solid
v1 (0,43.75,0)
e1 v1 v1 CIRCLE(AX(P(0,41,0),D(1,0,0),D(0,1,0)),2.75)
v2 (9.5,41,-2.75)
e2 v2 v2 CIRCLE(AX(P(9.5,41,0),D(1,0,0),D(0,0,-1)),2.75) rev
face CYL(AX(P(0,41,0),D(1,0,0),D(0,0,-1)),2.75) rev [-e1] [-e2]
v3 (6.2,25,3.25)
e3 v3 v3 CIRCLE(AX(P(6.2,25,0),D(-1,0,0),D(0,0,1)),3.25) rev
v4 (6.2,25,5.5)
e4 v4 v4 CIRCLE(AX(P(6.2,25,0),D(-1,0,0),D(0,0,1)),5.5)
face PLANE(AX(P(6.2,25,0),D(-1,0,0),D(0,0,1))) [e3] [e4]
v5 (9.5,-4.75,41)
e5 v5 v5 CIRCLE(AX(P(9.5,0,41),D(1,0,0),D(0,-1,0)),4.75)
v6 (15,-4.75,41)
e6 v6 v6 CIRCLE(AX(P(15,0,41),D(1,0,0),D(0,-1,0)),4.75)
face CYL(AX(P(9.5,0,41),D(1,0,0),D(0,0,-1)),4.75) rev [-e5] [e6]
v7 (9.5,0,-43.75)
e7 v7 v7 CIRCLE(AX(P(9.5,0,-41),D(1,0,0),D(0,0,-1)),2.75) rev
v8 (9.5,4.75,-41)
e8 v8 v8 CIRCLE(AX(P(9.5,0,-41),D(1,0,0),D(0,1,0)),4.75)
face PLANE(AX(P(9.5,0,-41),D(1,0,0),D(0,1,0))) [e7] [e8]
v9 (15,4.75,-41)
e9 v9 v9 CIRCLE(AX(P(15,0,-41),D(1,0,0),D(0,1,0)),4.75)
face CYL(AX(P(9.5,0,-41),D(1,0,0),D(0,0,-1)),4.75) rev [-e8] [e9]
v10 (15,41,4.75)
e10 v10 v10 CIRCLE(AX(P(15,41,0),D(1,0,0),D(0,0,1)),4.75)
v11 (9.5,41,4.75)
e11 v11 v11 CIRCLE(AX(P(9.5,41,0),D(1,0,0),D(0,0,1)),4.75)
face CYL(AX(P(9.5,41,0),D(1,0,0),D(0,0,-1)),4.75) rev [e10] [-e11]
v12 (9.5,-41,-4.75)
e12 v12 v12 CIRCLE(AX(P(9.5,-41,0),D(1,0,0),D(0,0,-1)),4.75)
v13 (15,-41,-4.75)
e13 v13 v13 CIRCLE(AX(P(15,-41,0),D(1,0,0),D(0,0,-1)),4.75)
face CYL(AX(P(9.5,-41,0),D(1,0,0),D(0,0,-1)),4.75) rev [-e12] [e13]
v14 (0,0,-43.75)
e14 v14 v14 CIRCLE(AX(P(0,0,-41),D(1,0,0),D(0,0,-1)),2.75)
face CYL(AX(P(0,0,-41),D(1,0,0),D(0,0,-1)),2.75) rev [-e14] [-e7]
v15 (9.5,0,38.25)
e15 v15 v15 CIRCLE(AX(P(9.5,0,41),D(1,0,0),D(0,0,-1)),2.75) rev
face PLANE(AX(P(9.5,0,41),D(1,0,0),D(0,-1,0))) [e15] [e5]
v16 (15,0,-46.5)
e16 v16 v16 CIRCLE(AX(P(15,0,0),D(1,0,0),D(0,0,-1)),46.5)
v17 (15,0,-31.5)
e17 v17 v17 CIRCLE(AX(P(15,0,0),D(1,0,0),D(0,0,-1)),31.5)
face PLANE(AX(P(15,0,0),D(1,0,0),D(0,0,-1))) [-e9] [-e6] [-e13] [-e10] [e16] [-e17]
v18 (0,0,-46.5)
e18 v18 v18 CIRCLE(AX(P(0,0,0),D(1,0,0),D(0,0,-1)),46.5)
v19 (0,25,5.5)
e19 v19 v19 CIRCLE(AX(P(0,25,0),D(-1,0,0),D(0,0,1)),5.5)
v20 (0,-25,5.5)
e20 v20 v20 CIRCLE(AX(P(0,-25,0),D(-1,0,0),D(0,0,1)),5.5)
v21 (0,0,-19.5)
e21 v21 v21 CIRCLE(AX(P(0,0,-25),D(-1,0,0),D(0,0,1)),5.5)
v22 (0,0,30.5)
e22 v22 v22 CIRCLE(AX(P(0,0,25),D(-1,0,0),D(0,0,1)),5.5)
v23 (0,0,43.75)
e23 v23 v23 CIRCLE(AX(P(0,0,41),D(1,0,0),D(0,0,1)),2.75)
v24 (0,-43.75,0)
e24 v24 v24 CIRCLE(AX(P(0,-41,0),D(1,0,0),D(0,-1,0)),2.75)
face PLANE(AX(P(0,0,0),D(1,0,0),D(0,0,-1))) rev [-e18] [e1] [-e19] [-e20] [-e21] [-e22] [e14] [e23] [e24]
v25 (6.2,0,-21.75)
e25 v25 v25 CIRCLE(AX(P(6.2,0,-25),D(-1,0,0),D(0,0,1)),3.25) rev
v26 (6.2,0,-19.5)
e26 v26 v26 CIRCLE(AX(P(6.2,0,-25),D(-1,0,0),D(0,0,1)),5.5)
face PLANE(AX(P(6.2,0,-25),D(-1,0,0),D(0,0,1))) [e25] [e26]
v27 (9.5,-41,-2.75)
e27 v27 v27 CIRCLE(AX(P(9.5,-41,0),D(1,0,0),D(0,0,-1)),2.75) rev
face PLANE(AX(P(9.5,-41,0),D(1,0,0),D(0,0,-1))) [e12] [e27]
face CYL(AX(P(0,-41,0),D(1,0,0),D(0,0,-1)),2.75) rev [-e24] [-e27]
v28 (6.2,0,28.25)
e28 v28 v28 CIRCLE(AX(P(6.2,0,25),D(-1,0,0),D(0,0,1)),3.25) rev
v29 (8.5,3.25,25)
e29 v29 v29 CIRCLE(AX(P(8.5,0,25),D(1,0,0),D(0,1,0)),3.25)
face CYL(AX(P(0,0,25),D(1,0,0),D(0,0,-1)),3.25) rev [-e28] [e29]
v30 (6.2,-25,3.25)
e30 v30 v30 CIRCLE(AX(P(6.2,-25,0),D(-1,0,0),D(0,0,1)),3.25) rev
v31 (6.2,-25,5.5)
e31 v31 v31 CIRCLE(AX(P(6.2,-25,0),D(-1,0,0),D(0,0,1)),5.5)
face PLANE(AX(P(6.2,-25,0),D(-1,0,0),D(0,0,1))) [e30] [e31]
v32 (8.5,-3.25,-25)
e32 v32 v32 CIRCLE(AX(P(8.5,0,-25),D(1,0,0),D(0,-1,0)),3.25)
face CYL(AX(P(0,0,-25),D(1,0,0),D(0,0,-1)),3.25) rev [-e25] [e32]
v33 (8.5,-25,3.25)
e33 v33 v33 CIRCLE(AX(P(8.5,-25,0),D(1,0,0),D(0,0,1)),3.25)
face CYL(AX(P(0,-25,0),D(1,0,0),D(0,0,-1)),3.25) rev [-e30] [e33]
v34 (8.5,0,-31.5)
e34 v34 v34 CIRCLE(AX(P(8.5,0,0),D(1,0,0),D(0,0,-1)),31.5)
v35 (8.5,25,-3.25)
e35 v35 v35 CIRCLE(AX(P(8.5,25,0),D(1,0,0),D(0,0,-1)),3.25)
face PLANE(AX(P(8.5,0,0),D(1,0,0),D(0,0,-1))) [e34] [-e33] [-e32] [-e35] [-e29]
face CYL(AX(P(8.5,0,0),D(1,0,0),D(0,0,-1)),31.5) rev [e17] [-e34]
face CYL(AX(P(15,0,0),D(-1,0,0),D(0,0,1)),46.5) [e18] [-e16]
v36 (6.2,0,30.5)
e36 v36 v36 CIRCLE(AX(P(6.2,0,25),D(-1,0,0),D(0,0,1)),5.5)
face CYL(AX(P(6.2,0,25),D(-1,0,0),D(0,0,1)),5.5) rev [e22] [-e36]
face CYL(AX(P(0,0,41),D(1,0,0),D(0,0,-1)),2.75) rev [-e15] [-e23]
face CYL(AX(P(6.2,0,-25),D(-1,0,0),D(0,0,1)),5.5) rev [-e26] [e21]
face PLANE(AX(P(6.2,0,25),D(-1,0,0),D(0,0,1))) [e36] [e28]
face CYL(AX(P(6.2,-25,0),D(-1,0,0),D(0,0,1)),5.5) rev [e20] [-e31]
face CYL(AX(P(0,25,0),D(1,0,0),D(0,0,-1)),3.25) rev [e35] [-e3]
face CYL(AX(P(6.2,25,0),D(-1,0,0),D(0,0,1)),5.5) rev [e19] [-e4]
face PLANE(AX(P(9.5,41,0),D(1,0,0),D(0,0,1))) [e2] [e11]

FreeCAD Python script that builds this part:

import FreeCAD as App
import Part
import Sketcher

V = App.Vector

doc = App.newDocument("Part")
params = doc.addObject("Spreadsheet::Sheet", "Params")
for row, (alias, value) in enumerate([
    ("sketch1_diameter", "93 mm"),
    ("pad1_length", "15 mm"),
    ("sketch2_diameter", "63 mm"),
    ("pocket1_length", "6.5 mm"),
    ("sketch3_diameter", "6.5 mm"),
    ("sketch4_diameter", "11 mm"),
    ("pocket3_length", "6.2 mm"),
    ("sketch5_diameter", "5.5 mm"),
    ("sketch6_diameter", "9.5 mm"),
    ("pocket5_length", "5.5 mm"),
], start=1):
    params.set(f"A{row}", alias)
    params.set(f"B{row}", "=" + value)
    params.setAlias(f"B{row}", alias)

body = doc.addObject("PartDesign::Body", "Body")

sketch1 = body.newObject("Sketcher::SketchObject", "Sketch")
sketch1.AttachmentSupport = (doc.getObject("YZ_Plane"), [""])
sketch1.MapMode = "FlatFace"
sketch1.addGeometry(Part.Circle(V(0, 0, 0), V(0, 0, 1), 46), False)
sketch1.addConstraint(Sketcher.Constraint("Coincident", 0, 3, -1, 1))
sketch1.addConstraint(Sketcher.Constraint("Diameter", 0, 93.0))
sketch1.setExpression("Constraints[1]", "Params.sketch1_diameter")
pad1 = body.newObject("PartDesign::Pad", "Pad")
pad1.Profile = sketch1
pad1.setExpression("Length", "Params.pad1_length")

sketch2 = body.newObject("Sketcher::SketchObject", "Sketch001")
sketch2.AttachmentSupport = (doc.getObject("YZ_Plane"), [""])
sketch2.MapMode = "FlatFace"
sketch2.AttachmentOffset = App.Placement(V(0, 0, 15), App.Rotation())
sketch2.addGeometry(Part.Circle(V(0, 0, 0), V(0, 0, 1), 32), False)
sketch2.addConstraint(Sketcher.Constraint("Coincident", 0, 3, -1, 1))
sketch2.addConstraint(Sketcher.Constraint("Diameter", 0, 63.0))
sketch2.setExpression("Constraints[1]", "Params.sketch2_diameter")
pocket1 = body.newObject("PartDesign::Pocket", "Pocket")
pocket1.Profile = sketch2
pocket1.setExpression("Length", "Params.pocket1_length")

sketch3 = body.newObject("Sketcher::SketchObject", "Sketch002")
sketch3.AttachmentSupport = (doc.getObject("YZ_Plane"), [""])
sketch3.MapMode = "FlatFace"
sketch3.AttachmentOffset = App.Placement(V(0, 0, 8.5), App.Rotation())
sketch3.addGeometry(Part.Circle(V(25, 0, 0), V(0, 0, 1), 3.2), False)
sketch3.addConstraint(Sketcher.Constraint("PointOnObject", 0, 3, -1))
sketch3.addConstraint(Sketcher.Constraint("Diameter", 0, 6.5))
sketch3.addConstraint(Sketcher.Constraint("DistanceX", -1, 1, 0, 3, 25.0))
sketch3.setExpression("Constraints[1]", "Params.sketch3_diameter")
pocket2 = body.newObject("PartDesign::Pocket", "Pocket001")
pocket2.Profile = sketch3
pocket2.Type = "ThroughAll"
doc.recompute()

polarpattern = body.newObject("PartDesign::PolarPattern", "PolarPattern")
polarpattern.Originals = [pocket2]
polarpattern.Axis = (doc.getObject("X_Axis"), [""])
polarpattern.Angle = 360
polarpattern.Occurrences = 4
body.Tip = polarpattern

sketch4 = body.newObject("Sketcher::SketchObject", "Sketch003")
sketch4.AttachmentSupport = (doc.getObject("YZ_Plane"), [""])
sketch4.MapMode = "FlatFace"
sketch4.addGeometry(Part.Circle(V(25, 0, 0), V(0, 0, 1), 6), False)
sketch4.addGeometry(Part.Circle(V(0, -25, 0), V(0, 0, 1), 6), False)
sketch4.addGeometry(Part.Circle(V(-25, 0, 0), V(0, 0, 1), 6), False)
sketch4.addGeometry(Part.Circle(V(0, 25, 0), V(0, 0, 1), 6), False)
sketch4.addConstraint(Sketcher.Constraint("Equal", 0, 1))
sketch4.addConstraint(Sketcher.Constraint("Equal", 1, 2))
sketch4.addConstraint(Sketcher.Constraint("Equal", 2, 3))
sketch4.addConstraint(Sketcher.Constraint("Symmetric", 0, 3, 2, 3, -1, 1))
sketch4.addConstraint(Sketcher.Constraint("Symmetric", 1, 3, 3, 3, -1, 1))
sketch4.addConstraint(Sketcher.Constraint("PointOnObject", 0, 3, -1))
sketch4.addConstraint(Sketcher.Constraint("PointOnObject", 1, 3, -2))
sketch4.addConstraint(Sketcher.Constraint("Diameter", 0, 11.0))
sketch4.addConstraint(Sketcher.Constraint("DistanceX", -1, 1, 0, 3, 25.0))
sketch4.addConstraint(Sketcher.Constraint("DistanceY", 1, 3, -1, 1, 25.0))
sketch4.setExpression("Constraints[7]", "Params.sketch4_diameter")
pocket3 = body.newObject("PartDesign::Pocket", "Pocket002")
pocket3.Profile = sketch4
pocket3.setExpression("Length", "Params.pocket3_length")
pocket3.Reversed = True

sketch5 = body.newObject("Sketcher::SketchObject", "Sketch004")
sketch5.AttachmentSupport = (doc.getObject("YZ_Plane"), [""])
sketch5.MapMode = "FlatFace"
sketch5.AttachmentOffset = App.Placement(V(0, 0, 15), App.Rotation())
sketch5.addGeometry(Part.Circle(V(0, -41, 0), V(0, 0, 1), 2.8), False)
sketch5.addConstraint(Sketcher.Constraint("PointOnObject", 0, 3, -2))
sketch5.addConstraint(Sketcher.Constraint("Diameter", 0, 5.5))
sketch5.addConstraint(Sketcher.Constraint("DistanceY", 0, 3, -1, 1, 41.0))
sketch5.setExpression("Constraints[1]", "Params.sketch5_diameter")
pocket4 = body.newObject("PartDesign::Pocket", "Pocket003")
pocket4.Profile = sketch5
pocket4.Type = "ThroughAll"
doc.recompute()

polarpattern2 = body.newObject("PartDesign::PolarPattern", "PolarPattern001")
polarpattern2.Originals = [pocket4]
polarpattern2.Axis = (doc.getObject("X_Axis"), [""])
polarpattern2.Angle = 360
polarpattern2.Occurrences = 4
body.Tip = polarpattern2

sketch6 = body.newObject("Sketcher::SketchObject", "Sketch005")
sketch6.AttachmentSupport = (doc.getObject("YZ_Plane"), [""])
sketch6.MapMode = "FlatFace"
sketch6.AttachmentOffset = App.Placement(V(0, 0, 15), App.Rotation())
sketch6.addGeometry(Part.Circle(V(-41, 0, 0), V(0, 0, 1), 4.8), False)
sketch6.addConstraint(Sketcher.Constraint("PointOnObject", 0, 3, -1))
sketch6.addConstraint(Sketcher.Constraint("Diameter", 0, 9.5))
sketch6.addConstraint(Sketcher.Constraint("DistanceX", 0, 3, -1, 1, 41.0))
sketch6.setExpression("Constraints[1]", "Params.sketch6_diameter")
pocket5 = body.newObject("PartDesign::Pocket", "Pocket004")
pocket5.Profile = sketch6
pocket5.setExpression("Length", "Params.pocket5_length")
doc.recompute()

polarpattern3 = body.newObject("PartDesign::PolarPattern", "PolarPattern002")
polarpattern3.Originals = [pocket5]
polarpattern3.Axis = (doc.getObject("X_Axis"), [""])
polarpattern3.Angle = 360
polarpattern3.Occurrences = 4
body.Tip = polarpattern3

doc.recompute()
